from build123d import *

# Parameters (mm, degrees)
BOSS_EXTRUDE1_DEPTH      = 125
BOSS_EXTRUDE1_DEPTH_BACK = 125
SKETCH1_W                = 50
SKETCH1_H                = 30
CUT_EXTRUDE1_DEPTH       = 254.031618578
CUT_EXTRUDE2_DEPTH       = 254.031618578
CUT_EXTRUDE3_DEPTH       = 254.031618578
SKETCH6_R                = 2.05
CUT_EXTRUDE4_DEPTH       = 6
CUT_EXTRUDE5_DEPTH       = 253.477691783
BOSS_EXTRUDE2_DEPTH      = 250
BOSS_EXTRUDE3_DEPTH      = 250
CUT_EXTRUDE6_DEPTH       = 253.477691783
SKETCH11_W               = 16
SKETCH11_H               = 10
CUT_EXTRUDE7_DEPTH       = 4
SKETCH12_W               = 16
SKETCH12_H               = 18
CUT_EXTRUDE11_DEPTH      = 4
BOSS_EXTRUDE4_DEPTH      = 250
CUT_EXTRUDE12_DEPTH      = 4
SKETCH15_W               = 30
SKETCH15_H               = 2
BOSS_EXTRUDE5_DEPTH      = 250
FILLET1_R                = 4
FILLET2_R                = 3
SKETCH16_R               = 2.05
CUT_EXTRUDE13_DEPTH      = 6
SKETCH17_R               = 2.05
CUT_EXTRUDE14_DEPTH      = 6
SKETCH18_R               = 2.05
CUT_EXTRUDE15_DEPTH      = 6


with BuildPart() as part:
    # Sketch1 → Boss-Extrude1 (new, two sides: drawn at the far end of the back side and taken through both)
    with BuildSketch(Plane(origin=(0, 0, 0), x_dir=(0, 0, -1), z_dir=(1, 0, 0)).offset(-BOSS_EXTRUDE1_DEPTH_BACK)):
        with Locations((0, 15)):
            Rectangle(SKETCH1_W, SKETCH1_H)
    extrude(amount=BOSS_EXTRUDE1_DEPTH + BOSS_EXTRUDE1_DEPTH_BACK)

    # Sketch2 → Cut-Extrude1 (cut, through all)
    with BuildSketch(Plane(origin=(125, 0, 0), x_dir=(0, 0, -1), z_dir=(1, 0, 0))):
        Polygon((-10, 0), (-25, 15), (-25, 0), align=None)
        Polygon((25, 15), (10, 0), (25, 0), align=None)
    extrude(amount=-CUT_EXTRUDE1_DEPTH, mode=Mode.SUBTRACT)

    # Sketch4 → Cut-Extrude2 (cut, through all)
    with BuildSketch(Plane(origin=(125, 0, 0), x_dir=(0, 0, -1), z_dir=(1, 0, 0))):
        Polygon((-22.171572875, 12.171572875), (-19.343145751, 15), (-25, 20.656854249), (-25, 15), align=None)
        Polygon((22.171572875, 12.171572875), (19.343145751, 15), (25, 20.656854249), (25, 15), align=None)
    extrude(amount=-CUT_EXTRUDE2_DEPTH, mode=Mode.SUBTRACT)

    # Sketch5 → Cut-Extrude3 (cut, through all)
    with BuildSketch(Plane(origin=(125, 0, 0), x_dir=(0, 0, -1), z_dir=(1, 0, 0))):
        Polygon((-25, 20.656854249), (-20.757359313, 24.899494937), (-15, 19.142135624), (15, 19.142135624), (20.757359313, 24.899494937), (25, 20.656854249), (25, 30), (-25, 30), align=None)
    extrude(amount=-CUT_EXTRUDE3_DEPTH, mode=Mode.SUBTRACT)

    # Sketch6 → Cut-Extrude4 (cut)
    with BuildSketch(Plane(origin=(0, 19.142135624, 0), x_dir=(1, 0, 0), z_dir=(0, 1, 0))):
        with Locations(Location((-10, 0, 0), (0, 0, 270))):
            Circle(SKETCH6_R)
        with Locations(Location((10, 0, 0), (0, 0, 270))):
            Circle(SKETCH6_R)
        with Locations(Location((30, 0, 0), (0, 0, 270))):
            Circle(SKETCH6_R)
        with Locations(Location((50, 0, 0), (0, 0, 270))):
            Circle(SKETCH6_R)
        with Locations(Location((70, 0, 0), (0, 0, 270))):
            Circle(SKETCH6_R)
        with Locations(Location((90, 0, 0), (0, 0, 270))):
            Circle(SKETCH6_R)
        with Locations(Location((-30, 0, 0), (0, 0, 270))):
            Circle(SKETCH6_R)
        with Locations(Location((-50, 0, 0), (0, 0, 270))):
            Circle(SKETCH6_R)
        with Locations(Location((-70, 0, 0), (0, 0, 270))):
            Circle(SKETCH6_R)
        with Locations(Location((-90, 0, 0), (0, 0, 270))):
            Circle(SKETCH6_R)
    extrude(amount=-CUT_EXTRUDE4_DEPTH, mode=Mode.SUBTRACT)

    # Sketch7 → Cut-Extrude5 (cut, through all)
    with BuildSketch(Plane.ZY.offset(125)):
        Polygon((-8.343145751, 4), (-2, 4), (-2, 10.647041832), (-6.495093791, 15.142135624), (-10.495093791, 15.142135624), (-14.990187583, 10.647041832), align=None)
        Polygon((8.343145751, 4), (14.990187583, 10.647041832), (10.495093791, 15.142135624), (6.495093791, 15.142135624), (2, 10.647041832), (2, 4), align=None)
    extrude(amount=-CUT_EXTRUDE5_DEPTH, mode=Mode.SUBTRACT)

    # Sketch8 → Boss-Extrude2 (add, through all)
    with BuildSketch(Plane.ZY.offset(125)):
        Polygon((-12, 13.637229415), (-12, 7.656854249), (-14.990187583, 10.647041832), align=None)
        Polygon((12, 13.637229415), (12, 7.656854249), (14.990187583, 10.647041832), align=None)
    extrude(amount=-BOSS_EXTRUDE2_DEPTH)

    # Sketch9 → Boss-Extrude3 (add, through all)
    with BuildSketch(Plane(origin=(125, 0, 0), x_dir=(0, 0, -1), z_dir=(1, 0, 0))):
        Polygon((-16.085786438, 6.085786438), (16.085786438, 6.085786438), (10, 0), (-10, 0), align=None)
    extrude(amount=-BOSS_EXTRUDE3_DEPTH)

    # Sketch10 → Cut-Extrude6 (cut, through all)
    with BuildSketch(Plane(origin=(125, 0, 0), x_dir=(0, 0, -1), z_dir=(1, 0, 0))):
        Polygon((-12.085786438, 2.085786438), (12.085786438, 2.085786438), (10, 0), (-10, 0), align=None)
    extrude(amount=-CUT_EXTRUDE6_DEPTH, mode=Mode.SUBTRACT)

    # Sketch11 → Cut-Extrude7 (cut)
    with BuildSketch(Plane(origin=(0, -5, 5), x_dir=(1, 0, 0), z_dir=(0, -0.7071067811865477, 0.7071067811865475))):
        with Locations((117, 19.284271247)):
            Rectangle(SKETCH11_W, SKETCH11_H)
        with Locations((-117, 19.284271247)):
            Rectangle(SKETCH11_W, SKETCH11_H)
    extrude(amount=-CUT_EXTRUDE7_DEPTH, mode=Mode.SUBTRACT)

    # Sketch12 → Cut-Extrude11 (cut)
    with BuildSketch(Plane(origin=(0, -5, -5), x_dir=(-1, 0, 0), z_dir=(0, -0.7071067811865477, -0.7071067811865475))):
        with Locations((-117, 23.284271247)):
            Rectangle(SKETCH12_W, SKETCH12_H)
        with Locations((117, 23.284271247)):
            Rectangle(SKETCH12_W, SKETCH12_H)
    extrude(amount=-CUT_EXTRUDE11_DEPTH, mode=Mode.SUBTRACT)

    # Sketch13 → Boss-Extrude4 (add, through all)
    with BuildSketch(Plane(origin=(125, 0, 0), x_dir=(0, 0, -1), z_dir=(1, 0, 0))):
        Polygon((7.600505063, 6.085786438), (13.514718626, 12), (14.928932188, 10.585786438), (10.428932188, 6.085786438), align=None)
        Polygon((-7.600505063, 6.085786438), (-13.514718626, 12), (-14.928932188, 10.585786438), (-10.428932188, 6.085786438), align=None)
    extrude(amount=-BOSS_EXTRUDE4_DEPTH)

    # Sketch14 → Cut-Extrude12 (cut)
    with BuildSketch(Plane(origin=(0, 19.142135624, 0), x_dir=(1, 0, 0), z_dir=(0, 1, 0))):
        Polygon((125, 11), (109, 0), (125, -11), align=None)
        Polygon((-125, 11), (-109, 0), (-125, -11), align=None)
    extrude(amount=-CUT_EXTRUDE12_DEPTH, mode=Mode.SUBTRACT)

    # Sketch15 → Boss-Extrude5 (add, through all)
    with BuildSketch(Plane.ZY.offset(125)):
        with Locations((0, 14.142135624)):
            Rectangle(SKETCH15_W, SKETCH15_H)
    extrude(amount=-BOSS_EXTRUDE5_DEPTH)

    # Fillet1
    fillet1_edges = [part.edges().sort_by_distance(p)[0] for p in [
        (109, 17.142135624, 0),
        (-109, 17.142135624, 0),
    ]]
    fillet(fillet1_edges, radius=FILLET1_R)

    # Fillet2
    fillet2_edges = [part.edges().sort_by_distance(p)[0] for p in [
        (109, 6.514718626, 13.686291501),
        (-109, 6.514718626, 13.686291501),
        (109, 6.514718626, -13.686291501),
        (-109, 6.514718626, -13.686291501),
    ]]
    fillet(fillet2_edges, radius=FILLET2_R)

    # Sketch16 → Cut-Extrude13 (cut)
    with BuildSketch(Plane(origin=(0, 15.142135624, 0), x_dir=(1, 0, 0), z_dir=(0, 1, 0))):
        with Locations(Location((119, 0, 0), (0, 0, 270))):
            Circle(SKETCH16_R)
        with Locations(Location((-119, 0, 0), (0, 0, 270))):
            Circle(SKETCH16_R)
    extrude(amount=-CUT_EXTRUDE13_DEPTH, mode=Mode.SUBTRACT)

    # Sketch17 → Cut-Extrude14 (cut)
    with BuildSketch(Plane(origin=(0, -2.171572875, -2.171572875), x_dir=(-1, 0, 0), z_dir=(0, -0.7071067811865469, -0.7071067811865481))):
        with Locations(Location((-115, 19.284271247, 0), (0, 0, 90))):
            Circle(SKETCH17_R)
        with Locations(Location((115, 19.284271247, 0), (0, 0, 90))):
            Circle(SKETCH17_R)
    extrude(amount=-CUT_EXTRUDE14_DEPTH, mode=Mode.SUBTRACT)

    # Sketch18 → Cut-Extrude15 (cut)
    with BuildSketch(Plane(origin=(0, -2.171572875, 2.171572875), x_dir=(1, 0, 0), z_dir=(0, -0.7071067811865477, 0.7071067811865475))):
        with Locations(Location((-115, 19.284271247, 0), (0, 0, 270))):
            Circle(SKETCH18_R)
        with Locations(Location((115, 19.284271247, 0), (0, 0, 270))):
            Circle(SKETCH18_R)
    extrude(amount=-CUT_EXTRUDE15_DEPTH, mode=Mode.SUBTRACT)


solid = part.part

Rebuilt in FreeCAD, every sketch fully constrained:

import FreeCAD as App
import Part
import Sketcher
from FreeCAD import Vector


def edges_at(feature, points):
    """Names of the edges that pass closest to the given points."""
    edges = feature.Shape.Edges
    near = lambda p: min(range(len(edges)), key=lambda i: edges[i].distToShape(Part.Vertex(*p))[0])
    return sorted({f"Edge{near(p) + 1}" for p in points})

doc = App.newDocument("Part")
body = doc.addObject("PartDesign::Body", "Body")

# Sketch on YZ plane
sketch1 = body.newObject("Sketcher::SketchObject", "Sketch")
sketch1.AttachmentSupport = (doc.getObject("YZ_Plane"), [""])
sketch1.MapMode = "FlatFace"
sketch1.addGeometry([
    Part.LineSegment(Vector(30, 25, 0), Vector(0, 25, 0)),
    Part.LineSegment(Vector(0, 25, 0), Vector(0, -25, 0)),
    Part.LineSegment(Vector(0, -25, 0), Vector(30, -25, 0)),
    Part.LineSegment(Vector(30, -25, 0), Vector(30, 25, 0)),
], False)
sketch1.addConstraint([
    Sketcher.Constraint("Coincident", 0, 2, 1, 1),
    Sketcher.Constraint("Coincident", 1, 2, 2, 1),
    Sketcher.Constraint("Coincident", 2, 2, 3, 1),
    Sketcher.Constraint("Coincident", 3, 2, 0, 1),
    Sketcher.Constraint("Horizontal", 0),
    Sketcher.Constraint("Vertical", 1),
    Sketcher.Constraint("Horizontal", 2),
    Sketcher.Constraint("Vertical", 3),
    Sketcher.Constraint("Symmetric", 0, 2, 1, 2, -1, 1),
    Sketcher.Constraint("DistanceX", 0, 2, 0, 1, 30.0),
    Sketcher.Constraint("DistanceY", 1, 2, 1, 1, 50.0),
])
pad1 = body.newObject("PartDesign::Pad", "Pad")
pad1.Profile = sketch1
pad1.Type = "TwoLengths"
pad1.Length = 125
pad1.Length2 = 125

# Sketch on YZ plane
sketch2 = body.newObject("Sketcher::SketchObject", "Sketch001")
sketch2.AttachmentSupport = (doc.getObject("YZ_Plane"), [""])
sketch2.MapMode = "FlatFace"
sketch2.AttachmentOffset = App.Placement(Vector(0, 0, 125), App.Rotation())
sketch2.addGeometry([
    Part.LineSegment(Vector(0, 10, 0), Vector(15, 25, 0)),  # 0
    Part.LineSegment(Vector(15, 25, 0), Vector(0, 25, 0)),  # 1
    Part.LineSegment(Vector(0, 25, 0), Vector(0, 10, 0)),  # 2
    Part.LineSegment(Vector(15, -25, 0), Vector(0, -10, 0)),  # 3
    Part.LineSegment(Vector(0, -10, 0), Vector(0, -25, 0)),  # 4
    Part.LineSegment(Vector(0, -25, 0), Vector(15, -25, 0)),  # 5
], False)
sketch2.addConstraint([
    Sketcher.Constraint("Coincident", 0, 2, 1, 1),
    Sketcher.Constraint("Coincident", 1, 2, 2, 1),
    Sketcher.Constraint("Coincident", 2, 2, 0, 1),
    Sketcher.Constraint("Coincident", 3, 2, 4, 1),
    Sketcher.Constraint("Coincident", 4, 2, 5, 1),
    Sketcher.Constraint("Coincident", 5, 2, 3, 1),
    Sketcher.Constraint("Horizontal", 1),
    Sketcher.Constraint("Vertical", 2),
    Sketcher.Constraint("Vertical", 4),
    Sketcher.Constraint("Horizontal", 5),
    Sketcher.Constraint("Symmetric", 2, 2, 3, 2, -1, 1),
    Sketcher.Constraint("Symmetric", 1, 2, 4, 2, -1),
    Sketcher.Constraint("Perpendicular", 0, 3),
    Sketcher.Constraint("Vertical", 0, 2, 5, 2),
    Sketcher.Constraint("DistanceX", 1, 2, 1, 1, 15.0),
    Sketcher.Constraint("DistanceY", -1, 1, 0, 2, 25.0),
])
pocket1 = body.newObject("PartDesign::Pocket", "Pocket")
pocket1.Profile = sketch2
pocket1.Type = "ThroughAll"

# Sketch on YZ plane
sketch3 = body.newObject("Sketcher::SketchObject", "Sketch002")
sketch3.AttachmentSupport = (doc.getObject("YZ_Plane"), [""])
sketch3.MapMode = "FlatFace"
sketch3.AttachmentOffset = App.Placement(Vector(0, 0, 125), App.Rotation())
sketch3.addGeometry([
    Part.LineSegment(Vector(12.2, 22.2, 0), Vector(15, 19.3, 0)),  # 0
    Part.LineSegment(Vector(15, 19.3, 0), Vector(20.7, 25, 0)),  # 1
    Part.LineSegment(Vector(20.7, 25, 0), Vector(15, 25, 0)),  # 2
    Part.LineSegment(Vector(15, 25, 0), Vector(12.2, 22.2, 0)),  # 3
    Part.LineSegment(Vector(15, -19.3, 0), Vector(12.2, -22.2, 0)),  # 4
    Part.LineSegment(Vector(12.2, -22.2, 0), Vector(15, -25, 0)),  # 5
    Part.LineSegment(Vector(15, -25, 0), Vector(20.7, -25, 0)),  # 6
    Part.LineSegment(Vector(20.7, -25, 0), Vector(15, -19.3, 0)),  # 7
], False)
sketch3.addConstraint([
    Sketcher.Constraint("Coincident", 0, 2, 1, 1),
    Sketcher.Constraint("Coincident", 1, 2, 2, 1),
    Sketcher.Constraint("Coincident", 2, 2, 3, 1),
    Sketcher.Constraint("Coincident", 3, 2, 0, 1),
    Sketcher.Constraint("Coincident", 4, 2, 5, 1),
    Sketcher.Constraint("Coincident", 5, 2, 6, 1),
    Sketcher.Constraint("Coincident", 6, 2, 7, 1),
    Sketcher.Constraint("Coincident", 7, 2, 4, 1),
    Sketcher.Constraint("Horizontal", 2),
    Sketcher.Constraint("Horizontal", 6),
    Sketcher.Constraint("Symmetric", 3, 2, 4, 2, -1),
    Sketcher.Constraint("Symmetric", 2, 2, 5, 2, -1),
    Sketcher.Constraint("Symmetric", 0, 2, 7, 2, -1),
    Sketcher.Constraint("Perpendicular", 0, 1),
    Sketcher.Constraint("Parallel", 1, 3),
    Sketcher.Constraint("Parallel", 3, 4),
    Sketcher.Constraint("Parallel", 5, 7),
    Sketcher.Constraint("Vertical", 0, 2, 2, 2),
    Sketcher.Constraint("Distance", 0, 4.0),
    Sketcher.Constraint("DistanceX", -1, 1, 0, 2, 15.0),
    Sketcher.Constraint("DistanceY", -1, 1, 1, 2, 25.0),
])
pocket2 = body.newObject("PartDesign::Pocket", "Pocket001")
pocket2.Profile = sketch3
pocket2.Type = "ThroughAll"

# Sketch on YZ plane
sketch4 = body.newObject("Sketcher::SketchObject", "Sketch003")
sketch4.AttachmentSupport = (doc.getObject("YZ_Plane"), [""])
sketch4.MapMode = "FlatFace"
sketch4.AttachmentOffset = App.Placement(Vector(0, 0, 125), App.Rotation())
sketch4.addGeometry([
    Part.LineSegment(Vector(21, 25, 0), Vector(25, 21, 0)),  # 0
    Part.LineSegment(Vector(25, 21, 0), Vector(19, 15, 0)),  # 1
    Part.LineSegment(Vector(19, 15, 0), Vector(19, -15, 0)),  # 2
    Part.LineSegment(Vector(19, -15, 0), Vector(25, -21, 0)),  # 3
    Part.LineSegment(Vector(25, -21, 0), Vector(21, -25, 0)),  # 4
    Part.LineSegment(Vector(21, -25, 0), Vector(30, -25, 0)),  # 5
    Part.LineSegment(Vector(30, -25, 0), Vector(30, 25, 0)),  # 6
    Part.LineSegment(Vector(30, 25, 0), Vector(21, 25, 0)),  # 7
], False)
sketch4.addConstraint([
    Sketcher.Constraint("Coincident", 0, 2, 1, 1),
    Sketcher.Constraint("Coincident", 1, 2, 2, 1),
    Sketcher.Constraint("Coincident", 2, 2, 3, 1),
    Sketcher.Constraint("Coincident", 3, 2, 4, 1),
    Sketcher.Constraint("Coincident", 4, 2, 5, 1),
    Sketcher.Constraint("Coincident", 5, 2, 6, 1),
    Sketcher.Constraint("Coincident", 6, 2, 7, 1),
    Sketcher.Constraint("Coincident", 7, 2, 0, 1),
    Sketcher.Constraint("Vertical", 2),
    Sketcher.Constraint("Horizontal", 5),
    Sketcher.Constraint("Vertical", 6),
    Sketcher.Constraint("Horizontal", 7),
    Sketcher.Constraint("Symmetric", 0, 2, 3, 2, -1),
    Sketcher.Constraint("Symmetric", 4, 2, 7, 2, -1),
    Sketcher.Constraint("Perpendicular", 0, 1),
    Sketcher.Constraint("Perpendicular", 1, 3),
    Sketcher.Constraint("Perpendicular", 3, 4),
    Sketcher.Constraint("DistanceY", 2, 2, 2, 1, 30.0),
    Sketcher.Constraint("DistanceY", 6, 1, 6, 2, 50.0),
    Sketcher.Constraint("Distance", 0, 6.0),
    Sketcher.Constraint("DistanceX", -1, 1, 5, 2, 30.0),
    Sketcher.Constraint("DistanceX", 5, 1, 5, 2, 9.343146),
])
pocket3 = body.newObject("PartDesign::Pocket", "Pocket002")
pocket3.Profile = sketch4
pocket3.Type = "ThroughAll"

# Sketch on XZ plane
sketch5 = body.newObject("Sketcher::SketchObject", "Sketch004")
sketch5.AttachmentSupport = (doc.getObject("XZ_Plane"), [""])
sketch5.MapMode = "FlatFace"
sketch5.AttachmentOffset = App.Placement(Vector(0, 0, -19.142136), App.Rotation())
sketch5.addGeometry([
    Part.Circle(Vector(-10, 0, 0), Vector(0, 0, 1), 2),  # 0
    Part.Circle(Vector(10, 0, 0), Vector(0, 0, 1), 2),  # 1
    Part.Circle(Vector(30, 0, 0), Vector(0, 0, 1), 2),  # 2
    Part.Circle(Vector(50, 0, 0), Vector(0, 0, 1), 2),  # 3
    Part.Circle(Vector(70, 0, 0), Vector(0, 0, 1), 2),  # 4
    Part.Circle(Vector(90, 0, 0), Vector(0, 0, 1), 2),  # 5
    Part.Circle(Vector(-30, 0, 0), Vector(0, 0, 1), 2),  # 6
    Part.Circle(Vector(-50, 0, 0), Vector(0, 0, 1), 2),  # 7
    Part.Circle(Vector(-70, 0, 0), Vector(0, 0, 1), 2),  # 8
    Part.Circle(Vector(-90, 0, 0), Vector(0, 0, 1), 2),  # 9
], False)
sketch5.addConstraint([
    Sketcher.Constraint("Equal", 0, 1),
    Sketcher.Constraint("Equal", 1, 2),
    Sketcher.Constraint("Equal", 2, 3),
    Sketcher.Constraint("Equal", 3, 4),
    Sketcher.Constraint("Equal", 4, 5),
    Sketcher.Constraint("Equal", 5, 6),
    Sketcher.Constraint("Equal", 6, 7),
    Sketcher.Constraint("Equal", 7, 8),
    Sketcher.Constraint("Equal", 8, 9),
    Sketcher.Constraint("Symmetric", 0, 3, 1, 3, -1, 1),
    Sketcher.Constraint("Symmetric", 2, 3, 6, 3, -1, 1),
    Sketcher.Constraint("Symmetric", 3, 3, 7, 3, -1, 1),
    Sketcher.Constraint("Symmetric", 4, 3, 8, 3, -1, 1),
    Sketcher.Constraint("Symmetric", 5, 3, 9, 3, -1, 1),
    Sketcher.Constraint("PointOnObject", 0, 3, -1),
    Sketcher.Constraint("PointOnObject", 2, 3, -1),
    Sketcher.Constraint("PointOnObject", 3, 3, -1),
    Sketcher.Constraint("PointOnObject", 4, 3, -1),
    Sketcher.Constraint("PointOnObject", 5, 3, -1),
    Sketcher.Constraint("Diameter", 0, 4.1),
    Sketcher.Constraint("DistanceX", 0, 3, -1, 1, 10.0),
    Sketcher.Constraint("DistanceX", -1, 1, 2, 3, 30.0),
    Sketcher.Constraint("DistanceX", -1, 1, 3, 3, 50.0),
    Sketcher.Constraint("DistanceX", -1, 1, 4, 3, 70.0),
    Sketcher.Constraint("DistanceX", -1, 1, 5, 3, 90.0),
])
pocket4 = body.newObject("PartDesign::Pocket", "Pocket003")
pocket4.Profile = sketch5
pocket4.Length = 6
pocket4.Reversed = True

# Sketch on YZ plane
sketch6 = body.newObject("Sketcher::SketchObject", "Sketch005")
sketch6.AttachmentSupport = (doc.getObject("YZ_Plane"), [""])
sketch6.MapMode = "FlatFace"
sketch6.AttachmentOffset = App.Placement(Vector(0, 0, -125), App.Rotation())
sketch6.addGeometry([
    Part.LineSegment(Vector(4, -8.3, 0), Vector(4, -2, 0)),  # 0
    Part.LineSegment(Vector(4, -2, 0), Vector(10.6, -2, 0)),  # 1
    Part.LineSegment(Vector(10.6, -2, 0), Vector(15.1, -6.5, 0)),  # 2
    Part.LineSegment(Vector(15.1, -6.5, 0), Vector(15.1, -10.5, 0)),  # 3
    Part.LineSegment(Vector(15.1, -10.5, 0), Vector(10.6, -15, 0)),  # 4
    Part.LineSegment(Vector(10.6, -15, 0), Vector(4, -8.3, 0)),  # 5
    Part.LineSegment(Vector(4, 8.3, 0), Vector(10.6, 15, 0)),  # 6
    Part.LineSegment(Vector(10.6, 15, 0), Vector(15.1, 10.5, 0)),  # 7
    Part.LineSegment(Vector(15.1, 10.5, 0), Vector(15.1, 6.5, 0)),  # 8
    Part.LineSegment(Vector(15.1, 6.5, 0), Vector(10.6, 2, 0)),  # 9
    Part.LineSegment(Vector(10.6, 2, 0), Vector(4, 2, 0)),  # 10
    Part.LineSegment(Vector(4, 2, 0), Vector(4, 8.3, 0)),  # 11
], False)
sketch6.addConstraint([
    Sketcher.Constraint("Coincident", 0, 2, 1, 1),
    Sketcher.Constraint("Coincident", 1, 2, 2, 1),
    Sketcher.Constraint("Coincident", 2, 2, 3, 1),
    Sketcher.Constraint("Coincident", 3, 2, 4, 1),
    Sketcher.Constraint("Coincident", 4, 2, 5, 1),
    Sketcher.Constraint("Coincident", 5, 2, 0, 1),
    Sketcher.Constraint("Coincident", 6, 2, 7, 1),
    Sketcher.Constraint("Coincident", 7, 2, 8, 1),
    Sketcher.Constraint("Coincident", 8, 2, 9, 1),
    Sketcher.Constraint("Coincident", 9, 2, 10, 1),
    Sketcher.Constraint("Coincident", 10, 2, 11, 1),
    Sketcher.Constraint("Coincident", 11, 2, 6, 1),
    Sketcher.Constraint("Vertical", 0),
    Sketcher.Constraint("Horizontal", 1),
    Sketcher.Constraint("Vertical", 3),
    Sketcher.Constraint("Vertical", 8),
    Sketcher.Constraint("Horizontal", 10),
    Sketcher.Constraint("Vertical", 11),
    Sketcher.Constraint("Symmetric", 4, 2, 6, 2, -1),
    Sketcher.Constraint("Symmetric", 3, 2, 7, 2, -1),
    Sketcher.Constraint("Symmetric", 1, 2, 9, 2, -1),
    Sketcher.Constraint("Symmetric", 5, 2, 11, 2, -1),
    Sketcher.Constraint("Perpendicular", 2, 4),
    Sketcher.Constraint("Perpendicular", 4, 5),
    Sketcher.Constraint("Perpendicular", 5, 6),
    Sketcher.Constraint("Perpendicular", 7, 9),
    Sketcher.Constraint("Vertical", 1, 2, 4, 2),
    Sketcher.Constraint("DistanceY", 3, 2, 3, 1, 4.0),
    Sketcher.Constraint("DistanceX", -1, 1, 0, 2, 4.0),
    Sketcher.Constraint("DistanceY", 0, 2, -1, 1, 2.0),
    Sketcher.Constraint("DistanceX", 1, 1, 1, 2, 6.647042),
    Sketcher.Constraint("DistanceY", 0, 1, 0, 2, 6.343146),
])
pocket5 = body.newObject("PartDesign::Pocket", "Pocket004")
pocket5.Profile = sketch6
pocket5.Type = "ThroughAll"
pocket5.Reversed = True

# Sketch on YZ plane
sketch7 = body.newObject("Sketcher::SketchObject", "Sketch006")
sketch7.AttachmentSupport = (doc.getObject("YZ_Plane"), [""])
sketch7.MapMode = "FlatFace"
sketch7.AttachmentOffset = App.Placement(Vector(0, 0, -125), App.Rotation())
sketch7.addGeometry([
    Part.LineSegment(Vector(7.7, -12, 0), Vector(13.6, -12, 0)),  # 0
    Part.LineSegment(Vector(13.6, -12, 0), Vector(10.6, -15, 0)),  # 1
    Part.LineSegment(Vector(10.6, -15, 0), Vector(7.7, -12, 0)),  # 2
    Part.LineSegment(Vector(13.6, 12, 0), Vector(7.7, 12, 0)),  # 3
    Part.LineSegment(Vector(7.7, 12, 0), Vector(10.6, 15, 0)),  # 4
    Part.LineSegment(Vector(10.6, 15, 0), Vector(13.6, 12, 0)),  # 5
], False)
sketch7.addConstraint([
    Sketcher.Constraint("Coincident", 0, 2, 1, 1),
    Sketcher.Constraint("Coincident", 1, 2, 2, 1),
    Sketcher.Constraint("Coincident", 2, 2, 0, 1),
    Sketcher.Constraint("Coincident", 3, 2, 4, 1),
    Sketcher.Constraint("Coincident", 4, 2, 5, 1),
    Sketcher.Constraint("Coincident", 5, 2, 3, 1),
    Sketcher.Constraint("Horizontal", 0),
    Sketcher.Constraint("Horizontal", 3),
    Sketcher.Constraint("Symmetric", 2, 2, 3, 2, -1),
    Sketcher.Constraint("Symmetric", 1, 2, 4, 2, -1),
    Sketcher.Constraint("Perpendicular", 1, 2),
    Sketcher.Constraint("Perpendicular", 2, 4),
    Sketcher.Constraint("Perpendicular", 4, 5),
    Sketcher.Constraint("DistanceY", 0, 2, -1, 1, 12.0),
    Sketcher.Constraint("DistanceX", 0, 1, 0, 2, 5.980375),
    Sketcher.Constraint("DistanceX", -1, 1, 0, 2, 13.637229),
])
pad2 = body.newObject("PartDesign::Pad", "Pad001")
pad2.Profile = sketch7
pad2.Type = "UpToLast"

# Sketch on YZ plane
sketch8 = body.newObject("Sketcher::SketchObject", "Sketch007")
sketch8.AttachmentSupport = (doc.getObject("YZ_Plane"), [""])
sketch8.MapMode = "FlatFace"
sketch8.AttachmentOffset = App.Placement(Vector(0, 0, 125), App.Rotation())
sketch8.addGeometry([
    Part.LineSegment(Vector(6, -16, 0), Vector(6, 16, 0)),
    Part.LineSegment(Vector(6, 16, 0), Vector(0, 10, 0)),
    Part.LineSegment(Vector(0, 10, 0), Vector(0, -10, 0)),
    Part.LineSegment(Vector(0, -10, 0), Vector(6, -16, 0)),
], False)
sketch8.addConstraint([
    Sketcher.Constraint("Coincident", 0, 2, 1, 1),
    Sketcher.Constraint("Coincident", 1, 2, 2, 1),
    Sketcher.Constraint("Coincident", 2, 2, 3, 1),
    Sketcher.Constraint("Coincident", 3, 2, 0, 1),
    Sketcher.Constraint("Vertical", 0),
    Sketcher.Constraint("Vertical", 2),
    Sketcher.Constraint("Symmetric", 1, 2, 2, 2, -1, 1),
    Sketcher.Constraint("Perpendicular", 1, 3),
    Sketcher.Constraint("Equal", 1, 3),
    Sketcher.Constraint("DistanceY", 2, 2, 2, 1, 20.0),
    Sketcher.Constraint("Distance", 1, 8.606602),
])
pad3 = body.newObject("PartDesign::Pad", "Pad002")
pad3.Profile = sketch8
pad3.Type = "UpToLast"
pad3.Reversed = True

# Sketch on YZ plane
sketch9 = body.newObject("Sketcher::SketchObject", "Sketch008")
sketch9.AttachmentSupport = (doc.getObject("YZ_Plane"), [""])
sketch9.MapMode = "FlatFace"
sketch9.AttachmentOffset = App.Placement(Vector(0, 0, 125), App.Rotation())
sketch9.addGeometry([
    Part.LineSegment(Vector(2.1, -12.1, 0), Vector(2.1, 12.1, 0)),
    Part.LineSegment(Vector(2.1, 12.1, 0), Vector(0, 10, 0)),
    Part.LineSegment(Vector(0, 10, 0), Vector(0, -10, 0)),
    Part.LineSegment(Vector(0, -10, 0), Vector(2.1, -12.1, 0)),
], False)
sketch9.addConstraint([
    Sketcher.Constraint("Coincident", 0, 2, 1, 1),
    Sketcher.Constraint("Coincident", 1, 2, 2, 1),
    Sketcher.Constraint("Coincident", 2, 2, 3, 1),
    Sketcher.Constraint("Coincident", 3, 2, 0, 1),
    Sketcher.Constraint("Vertical", 0),
    Sketcher.Constraint("Vertical", 2),
    Sketcher.Constraint("Symmetric", 1, 2, 2, 2, -1, 1),
    Sketcher.Constraint("Perpendicular", 1, 3),
    Sketcher.Constraint("Equal", 1, 3),
    Sketcher.Constraint("DistanceY", 2, 2, 2, 1, 20.0),
    Sketcher.Constraint("DistanceY", 0, 1, 0, 2, 24.171573),
])
pocket6 = body.newObject("PartDesign::Pocket", "Pocket005")
pocket6.Profile = sketch9
pocket6.Type = "ThroughAll"

# Sketch on an angled plane
sketch10 = body.newObject("Sketcher::SketchObject", "Sketch009")
sketch10.Placement = App.Placement(Vector(0, -5, 5), App.Rotation(Vector(1, 0, 0), Vector(0, 0.707106781, 0.707106781), Vector(0, -0.707106781, 0.707106781), "ZXY"))
sketch10.addGeometry([
    Part.LineSegment(Vector(109, 24, 0), Vector(109, 14, 0)),  # 0
    Part.LineSegment(Vector(109, 14, 0), Vector(125, 14, 0)),  # 1
    Part.LineSegment(Vector(125, 14, 0), Vector(125, 24, 0)),  # 2
    Part.LineSegment(Vector(125, 24, 0), Vector(109, 24, 0)),  # 3
    Part.LineSegment(Vector(-125, 24, 0), Vector(-125, 14, 0)),  # 4
    Part.LineSegment(Vector(-125, 14, 0), Vector(-109, 14, 0)),  # 5
    Part.LineSegment(Vector(-109, 14, 0), Vector(-109, 24, 0)),  # 6
    Part.LineSegment(Vector(-109, 24, 0), Vector(-125, 24, 0)),  # 7
], False)
sketch10.addConstraint([
    Sketcher.Constraint("Coincident", 0, 2, 1, 1),
    Sketcher.Constraint("Coincident", 1, 2, 2, 1),
    Sketcher.Constraint("Coincident", 2, 2, 3, 1),
    Sketcher.Constraint("Coincident", 3, 2, 0, 1),
    Sketcher.Constraint("Coincident", 4, 2, 5, 1),
    Sketcher.Constraint("Coincident", 5, 2, 6, 1),
    Sketcher.Constraint("Coincident", 6, 2, 7, 1),
    Sketcher.Constraint("Coincident", 7, 2, 4, 1),
    Sketcher.Constraint("Vertical", 0),
    Sketcher.Constraint("Horizontal", 1),
    Sketcher.Constraint("Vertical", 2),
    Sketcher.Constraint("Horizontal", 3),
    Sketcher.Constraint("Vertical", 4),
    Sketcher.Constraint("Horizontal", 5),
    Sketcher.Constraint("Vertical", 6),
    Sketcher.Constraint("Horizontal", 7),
    Sketcher.Constraint("Symmetric", 1, 2, 4, 2, -2),
    Sketcher.Constraint("Symmetric", 3, 2, 6, 2, -2),
    Sketcher.Constraint("DistanceX", 1, 1, 1, 2, 16.0),
    Sketcher.Constraint("DistanceY", 0, 2, 0, 1, 10.0),
    Sketcher.Constraint("DistanceX", -1, 1, 0, 2, 109.0),
    Sketcher.Constraint("DistanceY", -1, 1, 0, 2, 14.284271),
])
pocket7 = body.newObject("PartDesign::Pocket", "Pocket006")
pocket7.Profile = sketch10
pocket7.Length = 4

# Sketch on an angled plane
sketch11 = body.newObject("Sketcher::SketchObject", "Sketch010")
sketch11.Placement = App.Placement(Vector(0, -5, -5), App.Rotation(Vector(-1, 0, 0), Vector(0, 0.707106781, -0.707106781), Vector(0, -0.707106781, -0.707106781), "ZXY"))
sketch11.addGeometry([
    Part.LineSegment(Vector(-125, 32, 0), Vector(-125, 14, 0)),  # 0
    Part.LineSegment(Vector(-125, 14, 0), Vector(-109, 14, 0)),  # 1
    Part.LineSegment(Vector(-109, 14, 0), Vector(-109, 32, 0)),  # 2
    Part.LineSegment(Vector(-109, 32, 0), Vector(-125, 32, 0)),  # 3
    Part.LineSegment(Vector(109, 32, 0), Vector(109, 14, 0)),  # 4
    Part.LineSegment(Vector(109, 14, 0), Vector(125, 14, 0)),  # 5
    Part.LineSegment(Vector(125, 14, 0), Vector(125, 32, 0)),  # 6
    Part.LineSegment(Vector(125, 32, 0), Vector(109, 32, 0)),  # 7
], False)
sketch11.addConstraint([
    Sketcher.Constraint("Coincident", 0, 2, 1, 1),
    Sketcher.Constraint("Coincident", 1, 2, 2, 1),
    Sketcher.Constraint("Coincident", 2, 2, 3, 1),
    Sketcher.Constraint("Coincident", 3, 2, 0, 1),
    Sketcher.Constraint("Coincident", 4, 2, 5, 1),
    Sketcher.Constraint("Coincident", 5, 2, 6, 1),
    Sketcher.Constraint("Coincident", 6, 2, 7, 1),
    Sketcher.Constraint("Coincident", 7, 2, 4, 1),
    Sketcher.Constraint("Vertical", 0),
    Sketcher.Constraint("Horizontal", 1),
    Sketcher.Constraint("Vertical", 2),
    Sketcher.Constraint("Horizontal", 3),
    Sketcher.Constraint("Vertical", 4),
    Sketcher.Constraint("Horizontal", 5),
    Sketcher.Constraint("Vertical", 6),
    Sketcher.Constraint("Horizontal", 7),
    Sketcher.Constraint("Symmetric", 1, 2, 4, 2, -2),
    Sketcher.Constraint("Symmetric", 3, 2, 6, 2, -2),
    Sketcher.Constraint("DistanceX", 1, 1, 1, 2, 16.0),
    Sketcher.Constraint("DistanceY", 0, 2, 0, 1, 18.0),
    Sketcher.Constraint("DistanceX", 0, 2, -1, 1, 125.0),
    Sketcher.Constraint("DistanceY", -1, 1, 0, 2, 14.284271),
])
pocket8 = body.newObject("PartDesign::Pocket", "Pocket007")
pocket8.Profile = sketch11
pocket8.Length = 4

# Sketch on YZ plane
sketch12 = body.newObject("Sketcher::SketchObject", "Sketch011")
sketch12.AttachmentSupport = (doc.getObject("YZ_Plane"), [""])
sketch12.MapMode = "FlatFace"
sketch12.AttachmentOffset = App.Placement(Vector(0, 0, 125), App.Rotation())
sketch12.addGeometry([
    Part.LineSegment(Vector(12, -13.5, 0), Vector(6.1, -7.6, 0)),  # 0
    Part.LineSegment(Vector(6.1, -7.6, 0), Vector(6.1, -10.4, 0)),  # 1
    Part.LineSegment(Vector(6.1, -10.4, 0), Vector(10.6, -14.9, 0)),  # 2
    Part.LineSegment(Vector(10.6, -14.9, 0), Vector(12, -13.5, 0)),  # 3
    Part.LineSegment(Vector(6.1, 7.6, 0), Vector(12, 13.5, 0)),  # 4
    Part.LineSegment(Vector(12, 13.5, 0), Vector(10.6, 14.9, 0)),  # 5
    Part.LineSegment(Vector(10.6, 14.9, 0), Vector(6.1, 10.4, 0)),  # 6
    Part.LineSegment(Vector(6.1, 10.4, 0), Vector(6.1, 7.6, 0)),  # 7
], False)
sketch12.addConstraint([
    Sketcher.Constraint("Coincident", 0, 2, 1, 1),
    Sketcher.Constraint("Coincident", 1, 2, 2, 1),
    Sketcher.Constraint("Coincident", 2, 2, 3, 1),
    Sketcher.Constraint("Coincident", 3, 2, 0, 1),
    Sketcher.Constraint("Coincident", 4, 2, 5, 1),
    Sketcher.Constraint("Coincident", 5, 2, 6, 1),
    Sketcher.Constraint("Coincident", 6, 2, 7, 1),
    Sketcher.Constraint("Coincident", 7, 2, 4, 1),
    Sketcher.Constraint("Vertical", 1),
    Sketcher.Constraint("Vertical", 7),
    Sketcher.Constraint("Symmetric", 3, 2, 4, 2, -1),
    Sketcher.Constraint("Symmetric", 2, 2, 5, 2, -1),
    Sketcher.Constraint("Symmetric", 1, 2, 6, 2, -1),
    Sketcher.Constraint("Parallel", 0, 2),
    Sketcher.Constraint("Perpendicular", 2, 3),
    Sketcher.Constraint("Parallel", 3, 4),
    Sketcher.Constraint("Perpendicular", 4, 5),
    Sketcher.Constraint("Distance", 3, 2.0),
    Sketcher.Constraint("DistanceX", -1, 1, 3, 2, 12.0),
    Sketcher.Constraint("DistanceX", 1, 2, 2, 2, 4.5),
    Sketcher.Constraint("DistanceY", 3, 2, -1, 1, 13.514719),
])
pad4 = body.newObject("PartDesign::Pad", "Pad003")
pad4.Profile = sketch12
pad4.Type = "UpToLast"
pad4.Reversed = True

# Sketch on XZ plane
sketch13 = body.newObject("Sketcher::SketchObject", "Sketch012")
sketch13.AttachmentSupport = (doc.getObject("XZ_Plane"), [""])
sketch13.MapMode = "FlatFace"
sketch13.AttachmentOffset = App.Placement(Vector(0, 0, -19.142136), App.Rotation())
sketch13.addGeometry([
    Part.LineSegment(Vector(125, -11, 0), Vector(109, 0, 0)),  # 0
    Part.LineSegment(Vector(109, 0, 0), Vector(125, 11, 0)),  # 1
    Part.LineSegment(Vector(125, 11, 0), Vector(125, -11, 0)),  # 2
    Part.LineSegment(Vector(-109, 0, 0), Vector(-125, -11, 0)),  # 3
    Part.LineSegment(Vector(-125, -11, 0), Vector(-125, 11, 0)),  # 4
    Part.LineSegment(Vector(-125, 11, 0), Vector(-109, 0, 0)),  # 5
], False)
sketch13.addConstraint([
    Sketcher.Constraint("Coincident", 0, 2, 1, 1),
    Sketcher.Constraint("Coincident", 1, 2, 2, 1),
    Sketcher.Constraint("Coincident", 2, 2, 0, 1),
    Sketcher.Constraint("Coincident", 3, 2, 4, 1),
    Sketcher.Constraint("Coincident", 4, 2, 5, 1),
    Sketcher.Constraint("Coincident", 5, 2, 3, 1),
    Sketcher.Constraint("Vertical", 2),
    Sketcher.Constraint("Vertical", 4),
    Sketcher.Constraint("Symmetric", 1, 2, 3, 2, -1, 1),
    Sketcher.Constraint("Symmetric", 0, 2, 5, 2, -1, 1),
    Sketcher.Constraint("PointOnObject", 0, 2, -1),
    Sketcher.Constraint("Parallel", 0, 5),
    Sketcher.Constraint("Horizontal", 2, 2, 3, 2),
    Sketcher.Constraint("DistanceY", 2, 2, 2, 1, 22.0),
    Sketcher.Constraint("DistanceX", -1, 1, 0, 2, 109.0),
    Sketcher.Constraint("DistanceX", -1, 1, 1, 2, 125.0),
])
pocket9 = body.newObject("PartDesign::Pocket", "Pocket008")
pocket9.Profile = sketch13
pocket9.Length = 4
pocket9.Reversed = True

# Sketch on YZ plane
sketch14 = body.newObject("Sketcher::SketchObject", "Sketch013")
sketch14.AttachmentSupport = (doc.getObject("YZ_Plane"), [""])
sketch14.MapMode = "FlatFace"
sketch14.AttachmentOffset = App.Placement(Vector(0, 0, -125), App.Rotation())
sketch14.addGeometry([
    Part.LineSegment(Vector(15.1, -15, 0), Vector(13.1, -15, 0)),
    Part.LineSegment(Vector(13.1, -15, 0), Vector(13.1, 15, 0)),
    Part.LineSegment(Vector(13.1, 15, 0), Vector(15.1, 15, 0)),
    Part.LineSegment(Vector(15.1, 15, 0), Vector(15.1, -15, 0)),
], False)
sketch14.addConstraint([
    Sketcher.Constraint("Coincident", 0, 2, 1, 1),
    Sketcher.Constraint("Coincident", 1, 2, 2, 1),
    Sketcher.Constraint("Coincident", 2, 2, 3, 1),
    Sketcher.Constraint("Coincident", 3, 2, 0, 1),
    Sketcher.Constraint("Horizontal", 0),
    Sketcher.Constraint("Vertical", 1),
    Sketcher.Constraint("Horizontal", 2),
    Sketcher.Constraint("Vertical", 3),
    Sketcher.Constraint("DistanceX", 0, 2, 0, 1, 2.0),
    Sketcher.Constraint("DistanceY", 1, 1, 1, 2, 30.0),
    Sketcher.Constraint("DistanceY", 0, 2, -1, 1, 15.0),
    Sketcher.Constraint("DistanceX", -1, 1, 0, 2, 13.142136),
])
pad5 = body.newObject("PartDesign::Pad", "Pad004")
pad5.Profile = sketch14
pad5.Type = "UpToLast"
doc.recompute()

fillet = body.newObject("PartDesign::Fillet", "Fillet")
fillet.Base = (pad5, edges_at(pad5, [(109, 17.142, 0), (-109, 17.142, 0)]))
fillet.Radius = 4
doc.recompute()

fillet2 = body.newObject("PartDesign::Fillet", "Fillet001")
fillet2.Base = (fillet, edges_at(fillet, [
    (109, 6.515, 13.686),
    (-109, 6.515, 13.686),
    (109, 6.515, -13.686),
    (-109, 6.515, -13.686),
]))
fillet2.Radius = 3

# Sketch on XZ plane
sketch15 = body.newObject("Sketcher::SketchObject", "Sketch014")
sketch15.AttachmentSupport = (doc.getObject("XZ_Plane"), [""])
sketch15.MapMode = "FlatFace"
sketch15.AttachmentOffset = App.Placement(Vector(0, 0, -15.142136), App.Rotation())
sketch15.addGeometry([
    Part.Circle(Vector(119, 0, 0), Vector(0, 0, 1), 2),
    Part.Circle(Vector(-119, 0, 0), Vector(0, 0, 1), 2),
], False)
sketch15.addConstraint([
    Sketcher.Constraint("Equal", 0, 1),
    Sketcher.Constraint("Symmetric", 0, 3, 1, 3, -1, 1),
    Sketcher.Constraint("PointOnObject", 0, 3, -1),
    Sketcher.Constraint("Diameter", 0, 4.1),
    Sketcher.Constraint("DistanceX", -1, 1, 0, 3, 119.0),
])
pocket10 = body.newObject("PartDesign::Pocket", "Pocket009")
pocket10.Profile = sketch15
pocket10.Length = 6
pocket10.Reversed = True

# Sketch on an angled plane
sketch16 = body.newObject("Sketcher::SketchObject", "Sketch015")
sketch16.Placement = App.Placement(Vector(0, -2.171573, -2.171573), App.Rotation(Vector(-1, 0, 0), Vector(0, 0.707106781, -0.707106781), Vector(0, -0.707106781, -0.707106781), "ZXY"))
sketch16.addGeometry([
    Part.Circle(Vector(-115, 19.3, 0), Vector(0, 0, 1), 2),
    Part.Circle(Vector(115, 19.3, 0), Vector(0, 0, 1), 2),
], False)
sketch16.addConstraint([
    Sketcher.Constraint("Equal", 0, 1),
    Sketcher.Constraint("Symmetric", 0, 3, 1, 3, -2),
    Sketcher.Constraint("Diameter", 0, 4.1),
    Sketcher.Constraint("DistanceX", 0, 3, -1, 1, 115.0),
    Sketcher.Constraint("DistanceY", -1, 1, 0, 3, 19.284271),
])
pocket11 = body.newObject("PartDesign::Pocket", "Pocket010")
pocket11.Profile = sketch16
pocket11.Length = 6

# Sketch on an angled plane
sketch17 = body.newObject("Sketcher::SketchObject", "Sketch016")
sketch17.Placement = App.Placement(Vector(0, -2.171573, 2.171573), App.Rotation(Vector(1, 0, 0), Vector(0, 0.707106781, 0.707106781), Vector(0, -0.707106781, 0.707106781), "ZXY"))
sketch17.addGeometry([
    Part.Circle(Vector(-115, 19.3, 0), Vector(0, 0, 1), 2),
    Part.Circle(Vector(115, 19.3, 0), Vector(0, 0, 1), 2),
], False)
sketch17.addConstraint([
    Sketcher.Constraint("Equal", 0, 1),
    Sketcher.Constraint("Symmetric", 0, 3, 1, 3, -2),
    Sketcher.Constraint("Diameter", 0, 4.1),
    Sketcher.Constraint("DistanceX", 0, 3, -1, 1, 115.0),
    Sketcher.Constraint("DistanceY", -1, 1, 0, 3, 19.284271),
])
pocket12 = body.newObject("PartDesign::Pocket", "Pocket011")
pocket12.Profile = sketch17
pocket12.Length = 6

doc.recompute()
